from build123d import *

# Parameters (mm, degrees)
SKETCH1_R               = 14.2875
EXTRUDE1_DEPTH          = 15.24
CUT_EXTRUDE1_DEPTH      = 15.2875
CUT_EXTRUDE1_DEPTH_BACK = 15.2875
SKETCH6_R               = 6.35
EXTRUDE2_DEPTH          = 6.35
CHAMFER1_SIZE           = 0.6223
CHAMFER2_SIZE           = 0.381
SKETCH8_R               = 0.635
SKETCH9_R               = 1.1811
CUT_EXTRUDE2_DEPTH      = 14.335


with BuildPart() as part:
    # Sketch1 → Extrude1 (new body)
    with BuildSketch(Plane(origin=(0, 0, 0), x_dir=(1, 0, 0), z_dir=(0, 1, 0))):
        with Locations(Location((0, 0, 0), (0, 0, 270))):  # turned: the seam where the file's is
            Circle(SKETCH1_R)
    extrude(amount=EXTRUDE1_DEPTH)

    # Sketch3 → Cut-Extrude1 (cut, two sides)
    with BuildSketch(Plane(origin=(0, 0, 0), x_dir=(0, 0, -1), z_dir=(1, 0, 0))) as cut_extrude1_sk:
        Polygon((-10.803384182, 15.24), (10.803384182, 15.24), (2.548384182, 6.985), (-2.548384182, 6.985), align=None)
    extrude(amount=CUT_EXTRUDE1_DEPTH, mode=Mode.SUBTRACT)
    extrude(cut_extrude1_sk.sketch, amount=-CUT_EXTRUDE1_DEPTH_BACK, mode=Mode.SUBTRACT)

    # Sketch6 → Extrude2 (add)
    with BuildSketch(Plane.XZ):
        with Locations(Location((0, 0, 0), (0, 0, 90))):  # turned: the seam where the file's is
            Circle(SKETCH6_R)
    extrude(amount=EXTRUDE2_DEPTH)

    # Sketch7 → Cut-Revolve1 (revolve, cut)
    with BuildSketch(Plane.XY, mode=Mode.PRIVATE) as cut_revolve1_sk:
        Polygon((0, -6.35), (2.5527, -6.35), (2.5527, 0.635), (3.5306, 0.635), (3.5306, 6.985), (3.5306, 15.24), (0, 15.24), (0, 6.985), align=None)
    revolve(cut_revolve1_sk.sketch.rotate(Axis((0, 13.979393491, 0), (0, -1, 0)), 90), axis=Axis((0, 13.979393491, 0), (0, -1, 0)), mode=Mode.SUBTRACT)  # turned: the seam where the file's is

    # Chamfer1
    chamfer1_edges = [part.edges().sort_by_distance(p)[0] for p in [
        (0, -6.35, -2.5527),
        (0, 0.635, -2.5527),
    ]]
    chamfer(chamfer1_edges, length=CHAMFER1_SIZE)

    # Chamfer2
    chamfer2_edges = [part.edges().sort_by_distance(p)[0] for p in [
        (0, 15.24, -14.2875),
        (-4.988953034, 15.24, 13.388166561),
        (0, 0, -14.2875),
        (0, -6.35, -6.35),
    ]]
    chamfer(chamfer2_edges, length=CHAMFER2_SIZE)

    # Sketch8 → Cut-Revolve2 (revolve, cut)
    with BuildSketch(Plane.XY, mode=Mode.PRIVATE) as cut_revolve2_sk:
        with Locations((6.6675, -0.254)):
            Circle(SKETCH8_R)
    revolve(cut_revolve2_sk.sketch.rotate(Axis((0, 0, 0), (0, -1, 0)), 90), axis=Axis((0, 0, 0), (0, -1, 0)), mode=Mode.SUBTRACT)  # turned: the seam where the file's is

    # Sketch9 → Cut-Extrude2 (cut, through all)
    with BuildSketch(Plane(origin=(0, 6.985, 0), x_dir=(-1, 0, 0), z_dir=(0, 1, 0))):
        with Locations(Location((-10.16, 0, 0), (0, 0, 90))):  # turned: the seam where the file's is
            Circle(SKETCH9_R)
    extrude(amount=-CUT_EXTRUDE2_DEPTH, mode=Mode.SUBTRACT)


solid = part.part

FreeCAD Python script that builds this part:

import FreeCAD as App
import Part
import Sketcher

V = App.Vector
Q = App.Units.Quantity


def edges_at(feature, points):
    """Names of the edges that pass closest to the given points."""
    edges = feature.Shape.Edges
    near = lambda p: min(range(len(edges)), key=lambda i: edges[i].distToShape(Part.Vertex(*p))[0])
    return sorted({f"Edge{near(p) + 1}" for p in points})

doc = App.newDocument("Part")
body = doc.addObject("PartDesign::Body", "Body")

sketch1 = body.newObject("Sketcher::SketchObject", "Sketch")
sketch1.AttachmentSupport = (doc.getObject("XZ_Plane"), [""])
sketch1.MapMode = "FlatFace"
sketch1.addGeometry(Part.Circle(V(0, 0, 0), V(0, 0, 1), 14), False)
sketch1.addConstraint([
    Sketcher.Constraint("Coincident", 0, 3, -1, 1),
    Sketcher.Constraint("Diameter", 0, Q("1.125 in")),
])
pad1 = body.newObject("PartDesign::Pad", "Pad")
pad1.Profile = sketch1
pad1.Length = Q("0.6 in")
pad1.Reversed = True

sketch2 = body.newObject("Sketcher::SketchObject", "Sketch001")
sketch2.AttachmentSupport = (doc.getObject("YZ_Plane"), [""])
sketch2.MapMode = "FlatFace"
sketch2.addGeometry([
    Part.LineSegment(V(15, -11, 0), V(15, 11, 0)),
    Part.LineSegment(V(15, 11, 0), V(7, 3, 0)),
    Part.LineSegment(V(7, 3, 0), V(7, -3, 0)),
    Part.LineSegment(V(7, -3, 0), V(15, -11, 0)),
], False)
sketch2.addConstraint([
    Sketcher.Constraint("Coincident", 0, 2, 1, 1),
    Sketcher.Constraint("Coincident", 1, 2, 2, 1),
    Sketcher.Constraint("Coincident", 2, 2, 3, 1),
    Sketcher.Constraint("Coincident", 3, 2, 0, 1),
    Sketcher.Constraint("Vertical", 0),
    Sketcher.Constraint("Vertical", 2),
    Sketcher.Constraint("Perpendicular", 1, 3),
    Sketcher.Constraint("Equal", 1, 3),
    Sketcher.Constraint("DistanceX", -1, 1, 0, 2, Q("0.6 in")),
    Sketcher.Constraint("DistanceX", -1, 1, 1, 2, Q("0.275 in")),
    Sketcher.Constraint("DistanceY", 0, 1, 0, 2, 21.606768),
    Sketcher.Constraint("DistanceY", -1, 1, 0, 2, 10.803384),
])
pocket1 = body.newObject("PartDesign::Pocket", "Pocket")
pocket1.Profile = sketch2
pocket1.Type = "ThroughAll"
pocket1.Midplane = True

sketch3 = body.newObject("Sketcher::SketchObject", "Sketch002")
sketch3.AttachmentSupport = (doc.getObject("XZ_Plane"), [""])
sketch3.MapMode = "FlatFace"
sketch3.addGeometry(Part.Circle(V(0, 0, 0), V(0, 0, 1), 6), False)
sketch3.addConstraint([
    Sketcher.Constraint("Coincident", 0, 3, -1, 1),
    Sketcher.Constraint("Diameter", 0, Q("0.5 in")),
])
pad2 = body.newObject("PartDesign::Pad", "Pad001")
pad2.Profile = sketch3
pad2.Length = Q("0.25 in")

sketch4 = body.newObject("Sketcher::SketchObject", "Sketch003")
sketch4.AttachmentSupport = (doc.getObject("XY_Plane"), [""])
sketch4.MapMode = "FlatFace"
sketch4.addGeometry([
    Part.LineSegment(V(0, -6.3, 0), V(2.6, -6.3, 0)),
    Part.LineSegment(V(2.6, -6.3, 0), V(2.6, 0.6, 0)),
    Part.LineSegment(V(2.6, 0.6, 0), V(3.5, 0.6, 0)),
    Part.LineSegment(V(3.5, 0.6, 0), V(3.5, 15.2, 0)),
    Part.LineSegment(V(3.5, 15.2, 0), V(0, 15.2, 0)),
    Part.LineSegment(V(0, 15.2, 0), V(0, -6.3, 0)),
], False)
sketch4.addConstraint([
    Sketcher.Constraint("Coincident", 0, 2, 1, 1),
    Sketcher.Constraint("Coincident", 1, 2, 2, 1),
    Sketcher.Constraint("Coincident", 2, 2, 3, 1),
    Sketcher.Constraint("Coincident", 3, 2, 4, 1),
    Sketcher.Constraint("Coincident", 4, 2, 5, 1),
    Sketcher.Constraint("Coincident", 5, 2, 0, 1),
    Sketcher.Constraint("Horizontal", 0),
    Sketcher.Constraint("Vertical", 1),
    Sketcher.Constraint("Horizontal", 2),
    Sketcher.Constraint("Vertical", 3),
    Sketcher.Constraint("Horizontal", 4),
    Sketcher.Constraint("Vertical", 5),
    Sketcher.Constraint("PointOnObject", 4, 2, -2),
    Sketcher.Constraint("DistanceY", 5, 2, 5, 1, Q("0.85 in")),
    Sketcher.Constraint("DistanceY", -1, 1, 3, 2, Q("0.6 in")),
    Sketcher.Constraint("DistanceX", 4, 2, 4, 1, Q("0.139 in")),
    Sketcher.Constraint("DistanceY", 1, 1, 1, 2, Q("0.275 in")),
    Sketcher.Constraint("DistanceX", 0, 1, 0, 2, Q("0.1005 in")),
])
groove = body.newObject("PartDesign::Groove", "Groove")
groove.Profile = sketch4
groove.ReferenceAxis = (sketch4, ["V_Axis"])
groove.Angle = 360
doc.recompute()

chamfer = body.newObject("PartDesign::Chamfer", "Chamfer")
chamfer.Base = (groove, edges_at(groove, [(0, -6.35, -2.553), (0, 0.635, -2.553)]))
chamfer.Size = Q("0.0245 in")
doc.recompute()

chamfer2 = body.newObject("PartDesign::Chamfer", "Chamfer001")
chamfer2.Base = (chamfer, edges_at(chamfer, [
    (0, 15.24, -14.287),
    (-4.989, 15.24, 13.388),
    (0, 0, -14.287),
    (0, -6.35, -6.35),
]))
chamfer2.Size = Q("0.015 in")

sketch5 = body.newObject("Sketcher::SketchObject", "Sketch004")
sketch5.AttachmentSupport = (doc.getObject("XY_Plane"), [""])
sketch5.MapMode = "FlatFace"
sketch5.addGeometry(Part.Circle(V(6.7, -0.3, 0), V(0, 0, 1), 0.6), False)
sketch5.addConstraint([
    Sketcher.Constraint("Diameter", 0, Q("0.05 in")),
    Sketcher.Constraint("DistanceY", 0, 3, -1, 1, Q("0.01 in")),
    Sketcher.Constraint("DistanceX", -1, 1, 0, 3, Q("0.2625 in")),
])
groove2 = body.newObject("PartDesign::Groove", "Groove001")
groove2.Profile = sketch5
groove2.ReferenceAxis = (sketch5, ["V_Axis"])
groove2.Angle = 360

sketch6 = body.newObject("Sketcher::SketchObject", "Sketch005")
sketch6.AttachmentSupport = (doc.getObject("XZ_Plane"), [""])
sketch6.MapMode = "FlatFace"
sketch6.AttachmentOffset = App.Placement(V(0, 0, -0.275 * 25.4), App.Rotation())
sketch6.addGeometry(Part.Circle(V(10.2, 0, 0), V(0, 0, 1), 1.2), False)
sketch6.addConstraint([
    Sketcher.Constraint("PointOnObject", 0, 3, -1),
    Sketcher.Constraint("Diameter", 0, Q("0.093 in")),
    Sketcher.Constraint("DistanceX", -1, 1, 0, 3, Q("0.4 in")),
])
pocket2 = body.newObject("PartDesign::Pocket", "Pocket001")
pocket2.Profile = sketch6
pocket2.Type = "ThroughAll"
pocket2.Reversed = True

doc.recompute()
